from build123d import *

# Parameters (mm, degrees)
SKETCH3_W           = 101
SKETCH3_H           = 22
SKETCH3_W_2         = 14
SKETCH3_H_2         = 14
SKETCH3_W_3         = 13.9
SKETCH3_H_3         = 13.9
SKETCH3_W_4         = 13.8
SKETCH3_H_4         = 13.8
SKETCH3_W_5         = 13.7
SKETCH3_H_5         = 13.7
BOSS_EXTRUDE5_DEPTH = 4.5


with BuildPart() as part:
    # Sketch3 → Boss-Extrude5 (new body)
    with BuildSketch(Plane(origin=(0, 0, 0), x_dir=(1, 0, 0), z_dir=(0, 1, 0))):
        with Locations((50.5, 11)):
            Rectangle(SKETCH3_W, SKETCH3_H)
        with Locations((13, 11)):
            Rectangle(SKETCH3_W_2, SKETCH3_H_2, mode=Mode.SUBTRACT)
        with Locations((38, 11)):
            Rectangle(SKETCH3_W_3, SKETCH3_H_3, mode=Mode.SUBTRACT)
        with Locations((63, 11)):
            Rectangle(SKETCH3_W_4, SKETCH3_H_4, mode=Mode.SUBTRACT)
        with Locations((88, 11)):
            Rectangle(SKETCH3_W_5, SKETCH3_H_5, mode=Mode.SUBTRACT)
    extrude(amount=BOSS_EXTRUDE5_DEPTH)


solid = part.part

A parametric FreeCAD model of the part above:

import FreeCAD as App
import Part
import Sketcher

V = App.Vector
Q = App.Units.Quantity


def add_polygon(sketch, points):
    """Adds a closed chain of lines whose ends are joined by coincident constraints."""
    first, n = sketch.GeometryCount, len(points)
    for a, b in zip(points, points[1:] + points[:1]):
        sketch.addGeometry(Part.LineSegment(App.Vector(*a, 0), App.Vector(*b, 0)), False)
    for i in range(n):
        sketch.addConstraint(Sketcher.Constraint("Coincident", first + i, 2, first + (i + 1) % n, 1))

doc = App.newDocument("Part")
body = doc.addObject("PartDesign::Body", "Body")

# Sketch on XZ plane
sketch1 = doc.addObject("Sketcher::SketchObject", "Sketch")
body.addObject(sketch1)
sketch1.AttachmentSupport = (doc.XZ_Plane, [""])
sketch1.MapMode = "FlatFace"
add_polygon(sketch1, [(0, -22), (0, 0), (101, 0), (101, -22)])  # lines 0-3
add_polygon(sketch1, [(20, -4), (6, -4), (6, -18), (20, -18)])  # lines 4-7
add_polygon(sketch1, [(44.95, -4.05), (31.05, -4.05), (31.05, -17.95), (44.95, -17.95)])  # lines 8-11
add_polygon(sketch1, [(69.9, -4.1), (56.1, -4.1), (56.1, -17.9), (69.9, -17.9)])  # lines 12-15
add_polygon(sketch1, [(94.85, -4.15), (81.15, -4.15), (81.15, -17.85), (94.85, -17.85)])  # lines 16-19
sketch1.addConstraint(Sketcher.Constraint("Vertical", 0))
sketch1.addConstraint(Sketcher.Constraint("Horizontal", 1))
sketch1.addConstraint(Sketcher.Constraint("Vertical", 2))
sketch1.addConstraint(Sketcher.Constraint("Horizontal", 3))
sketch1.addConstraint(Sketcher.Constraint("Horizontal", 4))
sketch1.addConstraint(Sketcher.Constraint("Vertical", 5))
sketch1.addConstraint(Sketcher.Constraint("Horizontal", 6))
sketch1.addConstraint(Sketcher.Constraint("Vertical", 7))
sketch1.addConstraint(Sketcher.Constraint("Horizontal", 8))
sketch1.addConstraint(Sketcher.Constraint("Vertical", 9))
sketch1.addConstraint(Sketcher.Constraint("Horizontal", 10))
sketch1.addConstraint(Sketcher.Constraint("Vertical", 11))
sketch1.addConstraint(Sketcher.Constraint("Horizontal", 12))
sketch1.addConstraint(Sketcher.Constraint("Vertical", 13))
sketch1.addConstraint(Sketcher.Constraint("Horizontal", 14))
sketch1.addConstraint(Sketcher.Constraint("Vertical", 15))
sketch1.addConstraint(Sketcher.Constraint("Horizontal", 16))
sketch1.addConstraint(Sketcher.Constraint("Vertical", 17))
sketch1.addConstraint(Sketcher.Constraint("Horizontal", 18))
sketch1.addConstraint(Sketcher.Constraint("Vertical", 19))
sketch1.addConstraint(Sketcher.Constraint("Coincident", 0, 2, -1, 1))
sketch1.addConstraint(Sketcher.Constraint("Equal", 6, 5))
sketch1.addConstraint(Sketcher.Constraint("Equal", 10, 9))
sketch1.addConstraint(Sketcher.Constraint("Equal", 14, 13))
sketch1.addConstraint(Sketcher.Constraint("Equal", 18, 17))
sketch1.addConstraint(Sketcher.Constraint("DistanceX", 1, 1, 1, 2, Q("101 mm")))
sketch1.addConstraint(Sketcher.Constraint("DistanceX", 4, 2, 4, 1, Q("14 mm")))
sketch1.addConstraint(Sketcher.Constraint("DistanceY", 0, 1, 0, 2, Q("22 mm")))
sketch1.addConstraint(Sketcher.Constraint("DistanceX", 8, 2, 8, 1, Q("13.9 mm")))
sketch1.addConstraint(Sketcher.Constraint("DistanceX", 12, 2, 12, 1, Q("13.8 mm")))
sketch1.addConstraint(Sketcher.Constraint("DistanceX", 16, 2, 16, 1, Q("13.7 mm")))
sketch1.addConstraint(Sketcher.Constraint("DistanceX", -1, 1, 4, 2, Q("6 mm")))
sketch1.addConstraint(Sketcher.Constraint("DistanceY", 4, 2, -1, 1, Q("4 mm")))
sketch1.addConstraint(Sketcher.Constraint("DistanceX", -1, 1, 12, 2, Q("56.1 mm")))
sketch1.addConstraint(Sketcher.Constraint("DistanceY", 12, 2, -1, 1, Q("4.1 mm")))
sketch1.addConstraint(Sketcher.Constraint("DistanceX", -1, 1, 8, 2, Q("31.05 mm")))
sketch1.addConstraint(Sketcher.Constraint("DistanceY", 8, 2, -1, 1, Q("4.05 mm")))
sketch1.addConstraint(Sketcher.Constraint("DistanceX", -1, 1, 16, 2, Q("81.15 mm")))
sketch1.addConstraint(Sketcher.Constraint("DistanceY", 16, 2, -1, 1, Q("4.15 mm")))
pad1 = doc.addObject("PartDesign::Pad", "Pad")
body.addObject(pad1)
pad1.Profile = sketch1
pad1.Length = 4.5
pad1.Reversed = True

doc.recompute()
